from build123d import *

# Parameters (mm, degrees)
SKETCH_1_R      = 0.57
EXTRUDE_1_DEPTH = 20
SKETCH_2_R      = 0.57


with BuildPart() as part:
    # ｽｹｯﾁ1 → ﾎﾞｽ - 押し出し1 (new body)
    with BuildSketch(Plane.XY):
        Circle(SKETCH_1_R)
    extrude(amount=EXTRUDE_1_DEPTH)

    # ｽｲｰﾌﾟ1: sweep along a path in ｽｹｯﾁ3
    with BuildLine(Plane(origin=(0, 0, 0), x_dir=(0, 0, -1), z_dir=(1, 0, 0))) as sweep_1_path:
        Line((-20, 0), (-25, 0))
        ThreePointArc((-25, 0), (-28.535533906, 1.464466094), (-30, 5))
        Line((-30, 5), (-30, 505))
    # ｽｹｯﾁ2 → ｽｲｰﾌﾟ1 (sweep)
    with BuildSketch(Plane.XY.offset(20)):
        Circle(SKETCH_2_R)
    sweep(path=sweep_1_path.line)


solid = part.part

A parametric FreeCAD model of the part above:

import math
import FreeCAD as App
import Part
import Sketcher
from FreeCAD import Vector

doc = App.newDocument("Part")
body = doc.addObject("PartDesign::Body", "Body")

# Sketch on XY plane
sketch1 = doc.addObject("Sketcher::SketchObject", "Sketch")
body.addObject(sketch1)
sketch1.AttachmentSupport = (doc.XY_Plane, [""])
sketch1.MapMode = "FlatFace"
sketch1.addGeometry(Part.Circle(Vector(0, 0, 0), Vector(0, 0, 1), 0.6), False)
sketch1.addConstraint([
    Sketcher.Constraint("Coincident", 0, 3, -1, 1),
    Sketcher.Constraint("Diameter", 0, 1.14),
])
pad1 = doc.addObject("PartDesign::Pad", "Pad")
body.addObject(pad1)
pad1.Profile = sketch1
pad1.Length = 20

# Sketch on XY plane
sketch2 = doc.addObject("Sketcher::SketchObject", "Sketch001")
body.addObject(sketch2)
sketch2.AttachmentSupport = (doc.XY_Plane, [""])
sketch2.MapMode = "FlatFace"
sketch2.AttachmentOffset = App.Placement(Vector(0, 0, 20), App.Rotation())
sketch2.addGeometry(Part.Circle(Vector(0, 0, 0), Vector(0, 0, 1), 0.6), False)
sketch2.addConstraint([
    Sketcher.Constraint("Coincident", 0, 3, -1, 1),
    Sketcher.Constraint("Diameter", 0, 1.14),
])

# Sketch on YZ plane
sketch3 = doc.addObject("Sketcher::SketchObject", "Sketch002")
body.addObject(sketch3)
sketch3.AttachmentSupport = (doc.YZ_Plane, [""])
sketch3.MapMode = "FlatFace"
sketch3.addGeometry([
    Part.LineSegment(Vector(0, 20, 0), Vector(0, 25, 0)),
    Part.ArcOfCircle(Part.Circle(Vector(5, 25, 0), Vector(0, 0, 1), 5), math.radians(90), math.radians(180)),
    Part.LineSegment(Vector(5, 30, 0), Vector(505, 30, 0)),
], False)
sketch3.addConstraint([
    Sketcher.Constraint("Tangent", 0, 2, 1, 2),
    Sketcher.Constraint("Tangent", 1, 1, 2, 1),
    Sketcher.Constraint("Vertical", 0),
    Sketcher.Constraint("Horizontal", 2),
    Sketcher.Constraint("PointOnObject", 0, 1, -2),
    Sketcher.Constraint("Radius", 1, 5.0),
    Sketcher.Constraint("DistanceX", 2, 1, 2, 2, 500.0),
    Sketcher.Constraint("DistanceY", 0, 1, 0, 2, 5.0),
    Sketcher.Constraint("DistanceY", -1, 1, 1, 3, 25.0),
])
doc.recompute()

additivepipe = doc.addObject("PartDesign::AdditivePipe", "AdditivePipe")
body.addObject(additivepipe)
additivepipe.Profile = sketch2
additivepipe.Spine = (sketch3, ["Edge1", "Edge2", "Edge3"])

doc.recompute()
